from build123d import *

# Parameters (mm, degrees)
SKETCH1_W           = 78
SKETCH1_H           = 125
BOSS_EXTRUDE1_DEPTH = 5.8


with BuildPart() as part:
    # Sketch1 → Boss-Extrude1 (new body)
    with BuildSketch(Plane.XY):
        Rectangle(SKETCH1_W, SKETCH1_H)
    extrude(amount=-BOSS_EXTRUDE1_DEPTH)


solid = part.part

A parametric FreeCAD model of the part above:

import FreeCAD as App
import Part
import Sketcher

V = App.Vector
Q = App.Units.Quantity


def add_polygon(sketch, points):
    """Adds a closed chain of lines whose ends are joined by coincident constraints."""
    first, n = sketch.GeometryCount, len(points)
    for a, b in zip(points, points[1:] + points[:1]):
        sketch.addGeometry(Part.LineSegment(App.Vector(*a, 0), App.Vector(*b, 0)), False)
    for i in range(n):
        sketch.addConstraint(Sketcher.Constraint("Coincident", first + i, 2, first + (i + 1) % n, 1))

doc = App.newDocument("Part")
params = doc.addObject("Spreadsheet::Sheet", "Params")
for row, (alias, value) in enumerate([
    ("sketch1_width", "78 mm"),
    ("sketch1_height", "125 mm"),
    ("pad1_length", "5.8 mm"),
], start=1):
    params.set(f"A{row}", alias)
    params.set(f"B{row}", "=" + value)
    params.setAlias(f"B{row}", alias)

body = doc.addObject("PartDesign::Body", "Body")

sketch1 = doc.addObject("Sketcher::SketchObject", "Sketch")
body.addObject(sketch1)
sketch1.AttachmentSupport = (doc.XY_Plane, [""])
sketch1.MapMode = "FlatFace"
add_polygon(sketch1, [(-39, 62), (-39, -62), (39, -62), (39, 62)])
sketch1.addConstraint([
    Sketcher.Constraint("Vertical", 0),
    Sketcher.Constraint("Horizontal", 1),
    Sketcher.Constraint("Vertical", 2),
    Sketcher.Constraint("Horizontal", 3),
    Sketcher.Constraint("Symmetric", 0, 2, 2, 2, -1, 1),
    Sketcher.Constraint("DistanceX", 1, 1, 1, 2, Q("78 mm")),
    Sketcher.Constraint("DistanceY", 0, 2, 0, 1, Q("125 mm")),
])
sketch1.setExpression("Constraints[9]", "Params.sketch1_width")
sketch1.setExpression("Constraints[10]", "Params.sketch1_height")
pad1 = doc.addObject("PartDesign::Pad", "Pad")
body.addObject(pad1)
pad1.Profile = sketch1
pad1.setExpression("Length", "Params.pad1_length")
pad1.Reversed = True

doc.recompute()
